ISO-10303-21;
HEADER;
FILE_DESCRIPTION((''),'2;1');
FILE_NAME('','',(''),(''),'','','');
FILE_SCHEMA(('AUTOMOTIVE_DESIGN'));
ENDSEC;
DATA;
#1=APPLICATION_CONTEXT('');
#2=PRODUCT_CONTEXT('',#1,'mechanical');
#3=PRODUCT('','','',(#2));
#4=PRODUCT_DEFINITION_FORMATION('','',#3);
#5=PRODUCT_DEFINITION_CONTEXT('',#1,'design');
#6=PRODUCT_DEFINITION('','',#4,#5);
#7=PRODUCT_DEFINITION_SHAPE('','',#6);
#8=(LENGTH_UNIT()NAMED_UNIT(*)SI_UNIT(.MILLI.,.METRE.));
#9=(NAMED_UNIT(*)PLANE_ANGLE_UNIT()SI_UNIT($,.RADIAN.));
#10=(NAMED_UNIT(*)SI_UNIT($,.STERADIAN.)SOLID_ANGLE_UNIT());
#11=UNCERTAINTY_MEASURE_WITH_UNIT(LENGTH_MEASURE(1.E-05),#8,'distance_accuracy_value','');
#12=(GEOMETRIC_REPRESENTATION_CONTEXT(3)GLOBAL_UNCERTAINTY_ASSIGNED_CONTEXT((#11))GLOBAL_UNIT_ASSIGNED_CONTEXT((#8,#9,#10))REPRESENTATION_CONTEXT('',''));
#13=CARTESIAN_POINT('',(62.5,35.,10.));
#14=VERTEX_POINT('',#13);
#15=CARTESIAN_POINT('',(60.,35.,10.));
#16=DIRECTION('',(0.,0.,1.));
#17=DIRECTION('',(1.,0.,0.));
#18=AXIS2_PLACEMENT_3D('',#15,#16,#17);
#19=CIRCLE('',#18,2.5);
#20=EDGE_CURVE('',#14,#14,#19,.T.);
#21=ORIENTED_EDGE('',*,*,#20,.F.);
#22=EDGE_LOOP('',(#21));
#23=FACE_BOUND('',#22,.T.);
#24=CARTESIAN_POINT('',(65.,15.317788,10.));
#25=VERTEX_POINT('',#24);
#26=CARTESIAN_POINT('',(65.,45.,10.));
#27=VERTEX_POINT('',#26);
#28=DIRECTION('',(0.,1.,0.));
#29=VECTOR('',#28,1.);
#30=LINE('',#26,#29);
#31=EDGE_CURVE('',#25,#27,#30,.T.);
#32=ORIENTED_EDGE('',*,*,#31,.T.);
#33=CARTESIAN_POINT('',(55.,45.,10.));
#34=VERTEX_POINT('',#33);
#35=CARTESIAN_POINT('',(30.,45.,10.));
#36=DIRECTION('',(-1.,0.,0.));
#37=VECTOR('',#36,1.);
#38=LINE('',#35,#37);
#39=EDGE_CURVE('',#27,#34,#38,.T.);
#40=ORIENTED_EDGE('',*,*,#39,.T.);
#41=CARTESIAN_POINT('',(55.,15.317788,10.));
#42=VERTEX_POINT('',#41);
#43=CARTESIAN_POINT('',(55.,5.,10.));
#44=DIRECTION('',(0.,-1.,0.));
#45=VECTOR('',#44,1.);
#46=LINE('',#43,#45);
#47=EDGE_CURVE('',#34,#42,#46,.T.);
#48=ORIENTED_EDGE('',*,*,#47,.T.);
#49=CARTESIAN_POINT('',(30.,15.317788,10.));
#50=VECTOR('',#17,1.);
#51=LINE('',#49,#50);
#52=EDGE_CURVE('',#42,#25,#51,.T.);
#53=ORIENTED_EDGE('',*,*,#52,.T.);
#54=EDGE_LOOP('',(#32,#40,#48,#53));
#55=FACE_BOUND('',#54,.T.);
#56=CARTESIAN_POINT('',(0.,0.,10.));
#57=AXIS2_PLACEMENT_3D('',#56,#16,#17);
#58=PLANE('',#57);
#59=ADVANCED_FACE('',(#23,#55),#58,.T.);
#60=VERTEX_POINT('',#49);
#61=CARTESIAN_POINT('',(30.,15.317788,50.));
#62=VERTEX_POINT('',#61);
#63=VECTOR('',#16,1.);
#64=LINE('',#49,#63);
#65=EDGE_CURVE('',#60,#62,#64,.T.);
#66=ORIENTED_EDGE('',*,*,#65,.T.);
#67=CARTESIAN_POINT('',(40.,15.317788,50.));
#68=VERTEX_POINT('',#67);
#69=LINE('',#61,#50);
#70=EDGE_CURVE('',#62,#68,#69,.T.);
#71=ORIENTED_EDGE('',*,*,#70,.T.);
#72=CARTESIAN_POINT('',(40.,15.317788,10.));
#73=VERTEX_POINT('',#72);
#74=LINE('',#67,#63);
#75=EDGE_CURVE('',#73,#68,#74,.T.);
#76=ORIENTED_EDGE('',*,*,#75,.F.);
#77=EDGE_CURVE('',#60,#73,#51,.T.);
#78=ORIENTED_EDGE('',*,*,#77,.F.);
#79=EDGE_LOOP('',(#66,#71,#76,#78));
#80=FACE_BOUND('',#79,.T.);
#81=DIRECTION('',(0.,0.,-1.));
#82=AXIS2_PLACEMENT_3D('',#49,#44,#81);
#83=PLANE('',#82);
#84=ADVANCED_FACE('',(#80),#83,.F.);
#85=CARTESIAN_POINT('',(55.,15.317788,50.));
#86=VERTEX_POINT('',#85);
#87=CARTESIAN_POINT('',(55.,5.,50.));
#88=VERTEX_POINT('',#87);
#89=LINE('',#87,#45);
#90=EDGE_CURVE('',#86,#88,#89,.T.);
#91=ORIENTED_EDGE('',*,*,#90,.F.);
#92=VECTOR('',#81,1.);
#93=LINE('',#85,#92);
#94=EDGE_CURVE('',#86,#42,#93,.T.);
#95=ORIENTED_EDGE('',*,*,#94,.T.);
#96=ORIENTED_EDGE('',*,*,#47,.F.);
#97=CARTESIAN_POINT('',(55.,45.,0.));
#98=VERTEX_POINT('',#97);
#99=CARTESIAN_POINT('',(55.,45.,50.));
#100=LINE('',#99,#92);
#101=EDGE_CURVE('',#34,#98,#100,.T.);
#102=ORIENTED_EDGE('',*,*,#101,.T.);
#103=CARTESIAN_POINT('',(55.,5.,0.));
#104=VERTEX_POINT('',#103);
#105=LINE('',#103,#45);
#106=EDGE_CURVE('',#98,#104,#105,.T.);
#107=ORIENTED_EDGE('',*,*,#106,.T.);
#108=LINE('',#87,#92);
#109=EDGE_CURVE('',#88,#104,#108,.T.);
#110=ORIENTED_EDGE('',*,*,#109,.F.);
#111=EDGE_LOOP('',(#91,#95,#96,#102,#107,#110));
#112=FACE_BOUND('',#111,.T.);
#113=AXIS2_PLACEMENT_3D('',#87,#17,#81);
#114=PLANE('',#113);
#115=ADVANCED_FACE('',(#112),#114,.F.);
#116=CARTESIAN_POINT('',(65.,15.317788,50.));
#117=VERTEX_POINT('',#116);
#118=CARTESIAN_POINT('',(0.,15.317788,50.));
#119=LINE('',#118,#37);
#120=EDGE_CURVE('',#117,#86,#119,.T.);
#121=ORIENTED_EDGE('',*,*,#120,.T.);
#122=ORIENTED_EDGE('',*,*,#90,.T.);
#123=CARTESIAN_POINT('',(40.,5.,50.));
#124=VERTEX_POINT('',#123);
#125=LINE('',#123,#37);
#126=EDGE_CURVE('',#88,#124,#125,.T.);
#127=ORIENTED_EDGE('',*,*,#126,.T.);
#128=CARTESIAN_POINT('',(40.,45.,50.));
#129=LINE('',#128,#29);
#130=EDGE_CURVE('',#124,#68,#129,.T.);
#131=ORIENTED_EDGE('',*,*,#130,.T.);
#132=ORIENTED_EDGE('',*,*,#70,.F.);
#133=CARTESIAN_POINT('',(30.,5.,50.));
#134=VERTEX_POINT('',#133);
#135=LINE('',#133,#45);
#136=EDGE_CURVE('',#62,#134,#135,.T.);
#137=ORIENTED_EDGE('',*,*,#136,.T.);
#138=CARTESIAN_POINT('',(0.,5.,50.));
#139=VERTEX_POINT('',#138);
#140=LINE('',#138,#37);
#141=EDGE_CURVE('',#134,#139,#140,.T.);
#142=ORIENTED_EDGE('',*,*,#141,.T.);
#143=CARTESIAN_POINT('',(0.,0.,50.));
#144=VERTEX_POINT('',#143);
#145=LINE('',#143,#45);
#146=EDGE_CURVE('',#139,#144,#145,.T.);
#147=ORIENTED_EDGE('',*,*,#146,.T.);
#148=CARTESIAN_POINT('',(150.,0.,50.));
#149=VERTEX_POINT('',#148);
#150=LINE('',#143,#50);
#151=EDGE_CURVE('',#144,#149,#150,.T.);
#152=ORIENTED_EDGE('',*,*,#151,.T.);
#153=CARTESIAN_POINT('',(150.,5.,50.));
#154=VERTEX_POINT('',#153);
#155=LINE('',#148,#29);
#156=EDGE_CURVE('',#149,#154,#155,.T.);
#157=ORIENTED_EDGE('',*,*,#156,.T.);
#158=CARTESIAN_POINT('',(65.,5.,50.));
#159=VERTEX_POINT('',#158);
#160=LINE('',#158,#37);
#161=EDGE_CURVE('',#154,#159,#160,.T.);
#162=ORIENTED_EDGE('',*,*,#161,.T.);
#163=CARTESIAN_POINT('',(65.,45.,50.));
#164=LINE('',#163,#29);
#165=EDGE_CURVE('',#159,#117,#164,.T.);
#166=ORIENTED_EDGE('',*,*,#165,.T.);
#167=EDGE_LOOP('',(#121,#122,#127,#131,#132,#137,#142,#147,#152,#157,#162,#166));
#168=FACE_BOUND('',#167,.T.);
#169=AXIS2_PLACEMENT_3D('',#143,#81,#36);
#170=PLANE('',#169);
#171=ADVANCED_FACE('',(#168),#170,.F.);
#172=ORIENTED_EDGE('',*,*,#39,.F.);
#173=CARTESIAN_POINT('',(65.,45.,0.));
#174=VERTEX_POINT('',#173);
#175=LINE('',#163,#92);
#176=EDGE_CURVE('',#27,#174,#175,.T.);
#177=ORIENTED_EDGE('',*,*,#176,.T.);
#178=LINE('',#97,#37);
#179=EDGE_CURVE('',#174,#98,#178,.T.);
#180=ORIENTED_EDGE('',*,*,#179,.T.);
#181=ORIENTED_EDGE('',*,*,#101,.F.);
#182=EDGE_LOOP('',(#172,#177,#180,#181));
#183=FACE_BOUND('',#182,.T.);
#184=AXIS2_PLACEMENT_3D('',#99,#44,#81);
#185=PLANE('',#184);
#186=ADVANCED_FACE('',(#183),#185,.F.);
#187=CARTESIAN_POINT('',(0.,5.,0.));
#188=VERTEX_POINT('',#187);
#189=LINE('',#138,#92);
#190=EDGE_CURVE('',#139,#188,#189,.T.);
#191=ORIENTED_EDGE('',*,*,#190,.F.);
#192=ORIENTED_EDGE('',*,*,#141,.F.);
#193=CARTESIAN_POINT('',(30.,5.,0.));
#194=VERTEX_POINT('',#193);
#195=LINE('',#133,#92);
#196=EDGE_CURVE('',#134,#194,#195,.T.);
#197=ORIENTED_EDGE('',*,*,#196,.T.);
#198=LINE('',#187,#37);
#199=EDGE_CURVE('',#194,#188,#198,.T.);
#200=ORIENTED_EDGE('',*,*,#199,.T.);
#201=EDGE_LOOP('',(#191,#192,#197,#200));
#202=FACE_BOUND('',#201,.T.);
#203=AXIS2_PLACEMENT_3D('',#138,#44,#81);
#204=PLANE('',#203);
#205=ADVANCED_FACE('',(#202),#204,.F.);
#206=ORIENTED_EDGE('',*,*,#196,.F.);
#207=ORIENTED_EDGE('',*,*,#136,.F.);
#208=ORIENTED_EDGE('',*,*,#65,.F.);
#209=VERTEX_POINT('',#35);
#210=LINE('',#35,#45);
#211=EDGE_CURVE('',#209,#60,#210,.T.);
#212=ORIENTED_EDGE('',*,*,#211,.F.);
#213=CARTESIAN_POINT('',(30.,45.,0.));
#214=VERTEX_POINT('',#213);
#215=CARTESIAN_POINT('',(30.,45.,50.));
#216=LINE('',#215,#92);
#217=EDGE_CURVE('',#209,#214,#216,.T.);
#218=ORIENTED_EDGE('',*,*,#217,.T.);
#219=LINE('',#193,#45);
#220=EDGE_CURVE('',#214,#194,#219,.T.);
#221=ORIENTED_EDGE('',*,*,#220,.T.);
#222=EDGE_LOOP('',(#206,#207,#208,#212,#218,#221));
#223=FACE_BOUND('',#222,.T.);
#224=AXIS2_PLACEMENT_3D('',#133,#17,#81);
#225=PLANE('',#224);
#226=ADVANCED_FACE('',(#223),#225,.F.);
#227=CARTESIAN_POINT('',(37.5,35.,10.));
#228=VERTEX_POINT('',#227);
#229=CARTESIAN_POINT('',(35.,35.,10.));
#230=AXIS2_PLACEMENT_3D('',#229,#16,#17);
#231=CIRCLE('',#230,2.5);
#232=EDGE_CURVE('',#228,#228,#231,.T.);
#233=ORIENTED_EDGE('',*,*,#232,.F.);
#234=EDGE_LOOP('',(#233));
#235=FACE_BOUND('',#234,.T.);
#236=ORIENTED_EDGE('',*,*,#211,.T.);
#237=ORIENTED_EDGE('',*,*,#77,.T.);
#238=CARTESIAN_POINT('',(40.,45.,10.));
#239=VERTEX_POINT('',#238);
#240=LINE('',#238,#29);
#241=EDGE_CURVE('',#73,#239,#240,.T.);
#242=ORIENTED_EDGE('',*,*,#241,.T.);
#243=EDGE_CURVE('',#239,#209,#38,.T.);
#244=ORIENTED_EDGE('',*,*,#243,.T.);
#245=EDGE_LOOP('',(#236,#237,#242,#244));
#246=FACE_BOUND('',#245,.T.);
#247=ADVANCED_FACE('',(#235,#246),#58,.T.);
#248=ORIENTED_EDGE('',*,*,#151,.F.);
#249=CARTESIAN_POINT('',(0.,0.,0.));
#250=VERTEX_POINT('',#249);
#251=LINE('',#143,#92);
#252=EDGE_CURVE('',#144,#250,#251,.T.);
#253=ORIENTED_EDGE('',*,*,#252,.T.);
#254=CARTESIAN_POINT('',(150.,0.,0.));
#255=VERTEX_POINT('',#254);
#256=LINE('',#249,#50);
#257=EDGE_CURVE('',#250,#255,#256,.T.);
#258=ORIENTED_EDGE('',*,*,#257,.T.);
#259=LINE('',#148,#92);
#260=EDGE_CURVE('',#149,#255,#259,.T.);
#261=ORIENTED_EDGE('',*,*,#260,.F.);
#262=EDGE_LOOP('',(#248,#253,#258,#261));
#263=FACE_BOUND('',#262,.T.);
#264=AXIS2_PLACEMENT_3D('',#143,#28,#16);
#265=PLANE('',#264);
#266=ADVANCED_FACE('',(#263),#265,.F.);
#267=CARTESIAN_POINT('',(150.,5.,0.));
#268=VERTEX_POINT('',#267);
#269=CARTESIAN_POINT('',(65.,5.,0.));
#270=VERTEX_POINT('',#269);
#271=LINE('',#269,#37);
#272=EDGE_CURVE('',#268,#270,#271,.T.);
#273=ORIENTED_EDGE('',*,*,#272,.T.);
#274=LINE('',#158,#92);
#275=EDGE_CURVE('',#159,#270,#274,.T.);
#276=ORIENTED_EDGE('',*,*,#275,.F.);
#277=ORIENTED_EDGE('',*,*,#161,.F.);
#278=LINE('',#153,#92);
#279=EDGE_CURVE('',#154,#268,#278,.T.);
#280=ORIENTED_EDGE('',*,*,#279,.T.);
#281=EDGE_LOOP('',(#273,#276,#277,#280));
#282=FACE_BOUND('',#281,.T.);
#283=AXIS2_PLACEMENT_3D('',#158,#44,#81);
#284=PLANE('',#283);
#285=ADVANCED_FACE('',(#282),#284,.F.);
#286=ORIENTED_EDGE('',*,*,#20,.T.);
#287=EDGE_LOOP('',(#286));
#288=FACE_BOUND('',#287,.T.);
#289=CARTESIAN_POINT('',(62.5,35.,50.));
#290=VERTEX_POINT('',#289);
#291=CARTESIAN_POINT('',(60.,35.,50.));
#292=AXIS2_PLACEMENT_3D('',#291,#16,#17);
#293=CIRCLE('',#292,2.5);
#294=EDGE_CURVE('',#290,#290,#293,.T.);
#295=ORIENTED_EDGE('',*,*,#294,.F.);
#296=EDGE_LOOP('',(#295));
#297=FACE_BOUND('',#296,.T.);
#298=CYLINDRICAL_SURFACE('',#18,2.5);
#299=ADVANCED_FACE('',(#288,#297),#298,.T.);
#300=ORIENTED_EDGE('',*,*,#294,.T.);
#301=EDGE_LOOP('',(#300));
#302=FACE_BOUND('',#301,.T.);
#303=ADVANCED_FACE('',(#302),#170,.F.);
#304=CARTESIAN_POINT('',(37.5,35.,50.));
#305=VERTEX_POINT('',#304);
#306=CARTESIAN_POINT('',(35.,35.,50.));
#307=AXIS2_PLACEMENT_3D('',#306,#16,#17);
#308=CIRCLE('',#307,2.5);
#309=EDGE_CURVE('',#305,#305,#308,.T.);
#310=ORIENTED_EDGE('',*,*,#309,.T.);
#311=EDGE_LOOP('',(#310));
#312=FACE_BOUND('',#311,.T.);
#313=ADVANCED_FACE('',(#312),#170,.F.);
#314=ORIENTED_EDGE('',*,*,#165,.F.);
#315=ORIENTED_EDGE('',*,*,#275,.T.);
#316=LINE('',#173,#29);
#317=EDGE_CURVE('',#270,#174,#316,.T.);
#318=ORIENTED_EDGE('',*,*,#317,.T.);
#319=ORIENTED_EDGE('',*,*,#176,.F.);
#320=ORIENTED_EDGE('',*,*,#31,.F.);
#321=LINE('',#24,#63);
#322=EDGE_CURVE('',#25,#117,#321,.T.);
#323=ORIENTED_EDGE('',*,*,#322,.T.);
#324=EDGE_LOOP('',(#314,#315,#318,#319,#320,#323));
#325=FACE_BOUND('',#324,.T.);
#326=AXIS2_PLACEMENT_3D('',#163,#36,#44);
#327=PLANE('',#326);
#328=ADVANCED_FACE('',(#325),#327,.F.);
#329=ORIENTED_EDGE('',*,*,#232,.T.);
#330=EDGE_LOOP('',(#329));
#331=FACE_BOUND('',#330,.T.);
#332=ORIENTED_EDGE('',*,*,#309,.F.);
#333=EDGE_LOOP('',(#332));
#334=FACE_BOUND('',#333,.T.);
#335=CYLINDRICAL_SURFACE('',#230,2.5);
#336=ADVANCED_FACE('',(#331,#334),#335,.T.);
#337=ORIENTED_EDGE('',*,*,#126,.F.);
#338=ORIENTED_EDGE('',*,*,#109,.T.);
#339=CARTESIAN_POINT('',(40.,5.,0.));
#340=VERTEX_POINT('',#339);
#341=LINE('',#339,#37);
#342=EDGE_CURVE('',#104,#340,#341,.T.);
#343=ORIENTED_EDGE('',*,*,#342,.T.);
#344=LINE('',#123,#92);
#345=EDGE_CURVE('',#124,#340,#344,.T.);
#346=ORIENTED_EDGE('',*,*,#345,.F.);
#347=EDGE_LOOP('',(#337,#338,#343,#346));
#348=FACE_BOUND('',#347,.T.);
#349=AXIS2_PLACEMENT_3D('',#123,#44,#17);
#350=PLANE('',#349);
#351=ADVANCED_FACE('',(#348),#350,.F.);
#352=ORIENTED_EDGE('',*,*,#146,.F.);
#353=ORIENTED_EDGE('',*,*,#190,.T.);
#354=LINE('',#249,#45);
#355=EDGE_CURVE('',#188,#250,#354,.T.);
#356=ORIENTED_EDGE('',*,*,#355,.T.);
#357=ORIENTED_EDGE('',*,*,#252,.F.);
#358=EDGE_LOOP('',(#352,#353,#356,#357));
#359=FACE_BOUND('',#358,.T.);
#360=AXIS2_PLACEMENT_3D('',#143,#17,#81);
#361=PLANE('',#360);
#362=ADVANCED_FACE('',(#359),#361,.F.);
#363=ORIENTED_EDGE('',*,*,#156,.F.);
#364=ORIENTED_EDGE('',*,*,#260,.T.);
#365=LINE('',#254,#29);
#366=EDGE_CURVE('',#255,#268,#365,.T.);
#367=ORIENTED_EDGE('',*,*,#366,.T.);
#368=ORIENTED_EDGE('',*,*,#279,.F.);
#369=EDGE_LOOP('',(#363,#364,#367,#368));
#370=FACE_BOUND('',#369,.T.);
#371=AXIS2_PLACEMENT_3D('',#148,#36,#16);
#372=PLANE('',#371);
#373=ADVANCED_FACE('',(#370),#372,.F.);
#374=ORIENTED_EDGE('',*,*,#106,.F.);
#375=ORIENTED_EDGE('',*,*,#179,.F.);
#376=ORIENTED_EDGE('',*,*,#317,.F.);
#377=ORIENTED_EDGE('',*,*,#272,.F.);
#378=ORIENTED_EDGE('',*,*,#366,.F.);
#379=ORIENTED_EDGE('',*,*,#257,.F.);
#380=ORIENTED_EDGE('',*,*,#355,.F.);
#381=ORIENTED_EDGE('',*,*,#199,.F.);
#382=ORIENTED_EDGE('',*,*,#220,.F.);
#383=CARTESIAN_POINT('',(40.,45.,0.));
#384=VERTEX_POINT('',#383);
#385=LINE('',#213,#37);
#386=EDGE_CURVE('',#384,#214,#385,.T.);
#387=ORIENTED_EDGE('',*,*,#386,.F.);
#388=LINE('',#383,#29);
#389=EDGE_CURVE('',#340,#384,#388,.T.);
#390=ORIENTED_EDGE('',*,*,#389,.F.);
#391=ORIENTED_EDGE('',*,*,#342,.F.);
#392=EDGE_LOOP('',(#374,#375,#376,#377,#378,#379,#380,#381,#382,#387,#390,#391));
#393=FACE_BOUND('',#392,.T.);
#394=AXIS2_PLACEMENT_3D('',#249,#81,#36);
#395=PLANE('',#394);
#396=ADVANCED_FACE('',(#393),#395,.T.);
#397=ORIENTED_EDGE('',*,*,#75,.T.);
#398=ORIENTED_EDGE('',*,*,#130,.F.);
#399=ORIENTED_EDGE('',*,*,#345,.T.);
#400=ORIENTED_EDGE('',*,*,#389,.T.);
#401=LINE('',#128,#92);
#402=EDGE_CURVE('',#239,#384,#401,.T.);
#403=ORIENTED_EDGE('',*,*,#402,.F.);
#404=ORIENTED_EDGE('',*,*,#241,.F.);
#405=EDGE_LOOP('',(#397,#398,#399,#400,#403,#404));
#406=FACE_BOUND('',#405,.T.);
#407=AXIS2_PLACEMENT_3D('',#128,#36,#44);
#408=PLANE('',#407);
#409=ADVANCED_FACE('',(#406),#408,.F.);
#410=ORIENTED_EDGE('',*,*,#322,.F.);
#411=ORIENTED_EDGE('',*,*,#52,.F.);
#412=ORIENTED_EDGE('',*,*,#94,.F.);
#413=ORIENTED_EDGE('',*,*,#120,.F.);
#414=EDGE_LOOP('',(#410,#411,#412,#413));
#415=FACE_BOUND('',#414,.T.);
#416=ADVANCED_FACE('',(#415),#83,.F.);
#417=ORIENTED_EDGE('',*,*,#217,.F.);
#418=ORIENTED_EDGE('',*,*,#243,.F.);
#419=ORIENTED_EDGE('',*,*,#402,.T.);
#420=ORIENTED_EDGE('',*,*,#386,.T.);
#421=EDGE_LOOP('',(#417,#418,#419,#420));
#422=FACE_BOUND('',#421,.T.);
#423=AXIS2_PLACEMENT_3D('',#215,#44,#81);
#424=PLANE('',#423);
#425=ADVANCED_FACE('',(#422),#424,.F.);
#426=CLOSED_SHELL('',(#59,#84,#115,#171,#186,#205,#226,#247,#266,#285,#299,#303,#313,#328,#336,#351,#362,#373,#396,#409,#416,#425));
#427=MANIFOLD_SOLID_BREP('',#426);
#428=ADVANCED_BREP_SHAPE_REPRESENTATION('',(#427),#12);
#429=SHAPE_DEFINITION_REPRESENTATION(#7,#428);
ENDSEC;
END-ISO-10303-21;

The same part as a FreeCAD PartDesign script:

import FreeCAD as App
import Part
import Sketcher
from FreeCAD import Vector

doc = App.newDocument("Part")
params = doc.addObject("Spreadsheet::Sheet", "Params")
for row, (alias, value) in enumerate([
    ("sketch1_width", "30 mm"),
    ("sketch1_width2", "150 mm"),
    ("sketch1_width3", "85 mm"),
    ("sketch1_width4", "10 mm"),
    ("sketch1_height", "5 mm"),
    ("pad1_length", "50 mm"),
    ("sketch2_diameter", "5 mm"),
    ("sketch2_width", "35 mm"),
    ("pocket1_length", "40 mm"),
], start=1):
    params.set(f"A{row}", alias)
    params.set(f"B{row}", "=" + value)
    params.setAlias(f"B{row}", alias)

body = doc.addObject("PartDesign::Body", "Body")

# Sketch on XY plane
sketch1 = body.newObject("Sketcher::SketchObject", "Sketch")
sketch1.AttachmentSupport = (doc.getObject("XY_Plane"), [""])
sketch1.MapMode = "FlatFace"
sketch1.addGeometry(Part.LineSegment(Vector(30, 5, 0), Vector(0, 5, 0)), False)
sketch1.addGeometry(Part.LineSegment(Vector(0, 5, 0), Vector(0, 0, 0)), False)
sketch1.addGeometry(Part.LineSegment(Vector(0, 0, 0), Vector(150, 0, 0)), False)
sketch1.addGeometry(Part.LineSegment(Vector(150, 0, 0), Vector(150, 5, 0)), False)
sketch1.addGeometry(Part.LineSegment(Vector(150, 5, 0), Vector(65, 5, 0)), False)
sketch1.addGeometry(Part.LineSegment(Vector(65, 5, 0), Vector(65, 45, 0)), False)
sketch1.addGeometry(Part.LineSegment(Vector(65, 45, 0), Vector(55, 45, 0)), False)
sketch1.addGeometry(Part.LineSegment(Vector(55, 45, 0), Vector(55, 5, 0)), False)
sketch1.addGeometry(Part.LineSegment(Vector(55, 5, 0), Vector(40, 5, 0)), False)
sketch1.addGeometry(Part.LineSegment(Vector(40, 5, 0), Vector(40, 45, 0)), False)
sketch1.addGeometry(Part.LineSegment(Vector(40, 45, 0), Vector(30, 45, 0)), False)
sketch1.addGeometry(Part.LineSegment(Vector(30, 45, 0), Vector(30, 5, 0)), False)
sketch1.addConstraint(Sketcher.Constraint("Coincident", 0, 2, 1, 1))
sketch1.addConstraint(Sketcher.Constraint("Coincident", 1, 2, 2, 1))
sketch1.addConstraint(Sketcher.Constraint("Coincident", 2, 2, 3, 1))
sketch1.addConstraint(Sketcher.Constraint("Coincident", 3, 2, 4, 1))
sketch1.addConstraint(Sketcher.Constraint("Coincident", 4, 2, 5, 1))
sketch1.addConstraint(Sketcher.Constraint("Coincident", 5, 2, 6, 1))
sketch1.addConstraint(Sketcher.Constraint("Coincident", 6, 2, 7, 1))
sketch1.addConstraint(Sketcher.Constraint("Coincident", 7, 2, 8, 1))
sketch1.addConstraint(Sketcher.Constraint("Coincident", 8, 2, 9, 1))
sketch1.addConstraint(Sketcher.Constraint("Coincident", 9, 2, 10, 1))
sketch1.addConstraint(Sketcher.Constraint("Coincident", 10, 2, 11, 1))
sketch1.addConstraint(Sketcher.Constraint("Coincident", 11, 2, 0, 1))
sketch1.addConstraint(Sketcher.Constraint("Horizontal", 0))
sketch1.addConstraint(Sketcher.Constraint("Vertical", 1))
sketch1.addConstraint(Sketcher.Constraint("Horizontal", 2))
sketch1.addConstraint(Sketcher.Constraint("Vertical", 3))
sketch1.addConstraint(Sketcher.Constraint("Horizontal", 4))
sketch1.addConstraint(Sketcher.Constraint("Vertical", 5))
sketch1.addConstraint(Sketcher.Constraint("Horizontal", 6))
sketch1.addConstraint(Sketcher.Constraint("Vertical", 7))
sketch1.addConstraint(Sketcher.Constraint("Horizontal", 8))
sketch1.addConstraint(Sketcher.Constraint("Vertical", 9))
sketch1.addConstraint(Sketcher.Constraint("Horizontal", 10))
sketch1.addConstraint(Sketcher.Constraint("Vertical", 11))
sketch1.addConstraint(Sketcher.Constraint("Coincident", 1, 2, -1, 1))
sketch1.addConstraint(Sketcher.Constraint("Horizontal", 0, 2, 3, 2))
sketch1.addConstraint(Sketcher.Constraint("Horizontal", 4, 2, 7, 2))
sketch1.addConstraint(Sketcher.Constraint("Horizontal", 6, 2, 9, 2))
sketch1.addConstraint(Sketcher.Constraint("Equal", 6, 10))
sketch1.addConstraint(Sketcher.Constraint("DistanceX", 0, 2, 0, 1, 30.0))
sketch1.addConstraint(Sketcher.Constraint("DistanceX", 2, 1, 2, 2, 150.0))
sketch1.addConstraint(Sketcher.Constraint("DistanceX", 4, 2, 4, 1, 85.0))
sketch1.addConstraint(Sketcher.Constraint("DistanceX", 6, 2, 6, 1, 10.0))
sketch1.addConstraint(Sketcher.Constraint("DistanceY", 1, 2, 1, 1, 5.0))
sketch1.addConstraint(Sketcher.Constraint("DistanceY", 5, 1, 5, 2, 40.0))
sketch1.setExpression("Constraints[29]", "Params.sketch1_width")
sketch1.setExpression("Constraints[30]", "Params.sketch1_width2")
sketch1.setExpression("Constraints[31]", "Params.sketch1_width3")
sketch1.setExpression("Constraints[32]", "Params.sketch1_width4")
sketch1.setExpression("Constraints[33]", "Params.sketch1_height")
pad1 = body.newObject("PartDesign::Pad", "Pad")
pad1.Profile = sketch1
pad1.setExpression("Length", "Params.pad1_length")

# Sketch on XY plane
sketch2 = body.newObject("Sketcher::SketchObject", "Sketch001")
sketch2.AttachmentSupport = (doc.getObject("XY_Plane"), [""])
sketch2.MapMode = "FlatFace"
sketch2.AttachmentOffset = App.Placement(Vector(0, 0, 50), App.Rotation())
sketch2.addGeometry(Part.LineSegment(Vector(30, 45, 0), Vector(30, 15.317788, 0)), False)
sketch2.addGeometry(Part.LineSegment(Vector(30, 15.317788, 0), Vector(65, 15.317788, 0)), False)
sketch2.addGeometry(Part.LineSegment(Vector(65, 15.317788, 0), Vector(65, 45, 0)), False)
sketch2.addGeometry(Part.LineSegment(Vector(65, 45, 0), Vector(30, 45, 0)), False)
sketch2.addGeometry(Part.Circle(Vector(35, 35, 0), Vector(0, 0, 1), 2.5), False)
sketch2.addGeometry(Part.Circle(Vector(60, 35, 0), Vector(0, 0, 1), 2.5), False)
sketch2.addConstraint(Sketcher.Constraint("Coincident", 0, 2, 1, 1))
sketch2.addConstraint(Sketcher.Constraint("Coincident", 1, 2, 2, 1))
sketch2.addConstraint(Sketcher.Constraint("Coincident", 2, 2, 3, 1))
sketch2.addConstraint(Sketcher.Constraint("Coincident", 3, 2, 0, 1))
sketch2.addConstraint(Sketcher.Constraint("Vertical", 0))
sketch2.addConstraint(Sketcher.Constraint("Horizontal", 1))
sketch2.addConstraint(Sketcher.Constraint("Vertical", 2))
sketch2.addConstraint(Sketcher.Constraint("Horizontal", 3))
sketch2.addConstraint(Sketcher.Constraint("Equal", 4, 5))
sketch2.addConstraint(Sketcher.Constraint("Horizontal", 4, 3, 5, 3))
sketch2.addConstraint(Sketcher.Constraint("Diameter", 4, 5.0))
sketch2.addConstraint(Sketcher.Constraint("DistanceX", 1, 1, 1, 2, 35.0))
sketch2.addConstraint(Sketcher.Constraint("DistanceX", -1, 1, 4, 3, 35.0))
sketch2.addConstraint(Sketcher.Constraint("DistanceY", -1, 1, 4, 3, 35.0))
sketch2.addConstraint(Sketcher.Constraint("DistanceX", -1, 1, 5, 3, 60.0))
sketch2.addConstraint(Sketcher.Constraint("DistanceX", -1, 1, 0, 2, 30.0))
sketch2.addConstraint(Sketcher.Constraint("DistanceY", -1, 1, 2, 2, 45.0))
sketch2.addConstraint(Sketcher.Constraint("DistanceY", 0, 2, 0, 1, 29.682212))
sketch2.setExpression("Constraints[10]", "Params.sketch2_diameter")
sketch2.setExpression("Constraints[11]", "Params.sketch2_width")
pocket1 = body.newObject("PartDesign::Pocket", "Pocket")
pocket1.Profile = sketch2
pocket1.setExpression("Length", "Params.pocket1_length")

doc.recompute()
